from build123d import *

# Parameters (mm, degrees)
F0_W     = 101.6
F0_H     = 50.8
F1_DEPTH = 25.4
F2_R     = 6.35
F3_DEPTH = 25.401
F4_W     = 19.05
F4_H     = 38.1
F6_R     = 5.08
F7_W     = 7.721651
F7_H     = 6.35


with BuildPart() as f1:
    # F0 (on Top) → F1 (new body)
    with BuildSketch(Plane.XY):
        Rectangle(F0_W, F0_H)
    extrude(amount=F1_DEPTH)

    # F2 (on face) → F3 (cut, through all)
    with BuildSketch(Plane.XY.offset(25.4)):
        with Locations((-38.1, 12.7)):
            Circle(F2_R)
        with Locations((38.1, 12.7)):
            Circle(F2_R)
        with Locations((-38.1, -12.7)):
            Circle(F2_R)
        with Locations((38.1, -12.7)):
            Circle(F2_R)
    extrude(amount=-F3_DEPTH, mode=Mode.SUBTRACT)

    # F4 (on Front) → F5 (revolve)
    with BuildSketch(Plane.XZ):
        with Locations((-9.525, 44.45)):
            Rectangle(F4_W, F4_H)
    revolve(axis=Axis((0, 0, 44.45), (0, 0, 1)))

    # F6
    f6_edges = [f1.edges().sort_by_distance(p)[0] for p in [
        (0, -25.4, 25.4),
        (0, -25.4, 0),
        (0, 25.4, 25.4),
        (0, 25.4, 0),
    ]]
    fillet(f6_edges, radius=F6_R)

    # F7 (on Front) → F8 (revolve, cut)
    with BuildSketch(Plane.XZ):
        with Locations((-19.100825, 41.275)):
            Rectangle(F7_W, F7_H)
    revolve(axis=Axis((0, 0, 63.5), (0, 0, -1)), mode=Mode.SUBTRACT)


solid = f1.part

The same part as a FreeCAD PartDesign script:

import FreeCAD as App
import Part
import Sketcher
from FreeCAD import Vector
Q = App.Units.Quantity


def edges_at(feature, points):
    """Names of the edges that pass closest to the given points."""
    edges = feature.Shape.Edges
    near = lambda p: min(range(len(edges)), key=lambda i: edges[i].distToShape(Part.Vertex(*p))[0])
    return sorted({f"Edge{near(p) + 1}" for p in points})

doc = App.newDocument("Part")
body = doc.addObject("PartDesign::Body", "Body")

# Sketch on XY plane
sketch1 = body.newObject("Sketcher::SketchObject", "Sketch")
sketch1.AttachmentSupport = (doc.getObject("XY_Plane"), [""])
sketch1.MapMode = "FlatFace"
sketch1.addGeometry(Part.LineSegment(Vector(-51, 25, 0), Vector(-51, -25, 0)), False)
sketch1.addGeometry(Part.LineSegment(Vector(-51, -25, 0), Vector(51, -25, 0)), False)
sketch1.addGeometry(Part.LineSegment(Vector(51, -25, 0), Vector(51, 25, 0)), False)
sketch1.addGeometry(Part.LineSegment(Vector(51, 25, 0), Vector(-51, 25, 0)), False)
sketch1.addConstraint(Sketcher.Constraint("Coincident", 0, 2, 1, 1))
sketch1.addConstraint(Sketcher.Constraint("Coincident", 1, 2, 2, 1))
sketch1.addConstraint(Sketcher.Constraint("Coincident", 2, 2, 3, 1))
sketch1.addConstraint(Sketcher.Constraint("Coincident", 3, 2, 0, 1))
sketch1.addConstraint(Sketcher.Constraint("Vertical", 0))
sketch1.addConstraint(Sketcher.Constraint("Horizontal", 1))
sketch1.addConstraint(Sketcher.Constraint("Vertical", 2))
sketch1.addConstraint(Sketcher.Constraint("Horizontal", 3))
sketch1.addConstraint(Sketcher.Constraint("Symmetric", 0, 2, 2, 2, -1, 1))
sketch1.addConstraint(Sketcher.Constraint("DistanceX", 1, 1, 1, 2, Q("4 in")))
sketch1.addConstraint(Sketcher.Constraint("DistanceY", 0, 2, 0, 1, Q("2 in")))
pad1 = body.newObject("PartDesign::Pad", "Pad")
pad1.Profile = sketch1
pad1.Length = Q("1 in")

# Sketch on XY plane
sketch2 = body.newObject("Sketcher::SketchObject", "Sketch001")
sketch2.AttachmentSupport = (doc.getObject("XY_Plane"), [""])
sketch2.MapMode = "FlatFace"
sketch2.AttachmentOffset = App.Placement(Vector(0, 0, 1 * 25.4), App.Rotation())
sketch2.addGeometry(Part.Circle(Vector(-38, 13, 0), Vector(0, 0, 1), 6), False)
sketch2.addGeometry(Part.Circle(Vector(38, 13, 0), Vector(0, 0, 1), 6), False)
sketch2.addGeometry(Part.Circle(Vector(-38, -13, 0), Vector(0, 0, 1), 6), False)
sketch2.addGeometry(Part.Circle(Vector(38, -13, 0), Vector(0, 0, 1), 6), False)
sketch2.addConstraint(Sketcher.Constraint("Equal", 0, 1))
sketch2.addConstraint(Sketcher.Constraint("Equal", 1, 2))
sketch2.addConstraint(Sketcher.Constraint("Equal", 2, 3))
sketch2.addConstraint(Sketcher.Constraint("Symmetric", 1, 3, 2, 3, -1, 1))
sketch2.addConstraint(Sketcher.Constraint("Symmetric", 0, 3, 3, 3, -1, 1))
sketch2.addConstraint(Sketcher.Constraint("Symmetric", 0, 3, 1, 3, -2))
sketch2.addConstraint(Sketcher.Constraint("Diameter", 0, Q("0.5 in")))
sketch2.addConstraint(Sketcher.Constraint("DistanceX", 0, 3, 1, 3, Q("3 in")))
sketch2.addConstraint(Sketcher.Constraint("DistanceY", 2, 3, 0, 3, Q("1 in")))
pocket1 = body.newObject("PartDesign::Pocket", "Pocket")
pocket1.Profile = sketch2
pocket1.Type = "ThroughAll"

# Sketch on XZ plane
sketch3 = body.newObject("Sketcher::SketchObject", "Sketch002")
sketch3.AttachmentSupport = (doc.getObject("XZ_Plane"), [""])
sketch3.MapMode = "FlatFace"
sketch3.addGeometry(Part.LineSegment(Vector(-19, 64, 0), Vector(-19, 25, 0)), False)
sketch3.addGeometry(Part.LineSegment(Vector(-19, 25, 0), Vector(0, 25, 0)), False)
sketch3.addGeometry(Part.LineSegment(Vector(0, 25, 0), Vector(0, 64, 0)), False)
sketch3.addGeometry(Part.LineSegment(Vector(0, 64, 0), Vector(-19, 64, 0)), False)
sketch3.addConstraint(Sketcher.Constraint("Coincident", 0, 2, 1, 1))
sketch3.addConstraint(Sketcher.Constraint("Coincident", 1, 2, 2, 1))
sketch3.addConstraint(Sketcher.Constraint("Coincident", 2, 2, 3, 1))
sketch3.addConstraint(Sketcher.Constraint("Coincident", 3, 2, 0, 1))
sketch3.addConstraint(Sketcher.Constraint("Vertical", 0))
sketch3.addConstraint(Sketcher.Constraint("Horizontal", 1))
sketch3.addConstraint(Sketcher.Constraint("Vertical", 2))
sketch3.addConstraint(Sketcher.Constraint("Horizontal", 3))
sketch3.addConstraint(Sketcher.Constraint("PointOnObject", 1, 2, -2))
sketch3.addConstraint(Sketcher.Constraint("DistanceY", 0, 2, 0, 1, Q("1.5 in")))
sketch3.addConstraint(Sketcher.Constraint("DistanceY", -1, 1, 0, 2, Q("1 in")))
sketch3.addConstraint(Sketcher.Constraint("DistanceX", 1, 1, 1, 2, Q("0.75 in")))
revolution = body.newObject("PartDesign::Revolution", "Revolution")
revolution.Profile = sketch3
revolution.ReferenceAxis = (sketch3, ["V_Axis"])
revolution.Angle = 360
doc.recompute()

fillet = body.newObject("PartDesign::Fillet", "Fillet")
fillet.Base = (revolution, edges_at(revolution, [
    (0, -25.4, 25.4),
    (0, -25.4, 0),
    (0, 25.4, 25.4),
    (0, 25.4, 0),
]))
fillet.Radius = Q("0.2 in")

# Sketch on XZ plane
sketch4 = body.newObject("Sketcher::SketchObject", "Sketch003")
sketch4.AttachmentSupport = (doc.getObject("XZ_Plane"), [""])
sketch4.MapMode = "FlatFace"
sketch4.addGeometry(Part.LineSegment(Vector(-23, 44, 0), Vector(-23, 38, 0)), False)
sketch4.addGeometry(Part.LineSegment(Vector(-23, 38, 0), Vector(-15, 38, 0)), False)
sketch4.addGeometry(Part.LineSegment(Vector(-15, 38, 0), Vector(-15, 44, 0)), False)
sketch4.addGeometry(Part.LineSegment(Vector(-15, 44, 0), Vector(-23, 44, 0)), False)
sketch4.addConstraint(Sketcher.Constraint("Coincident", 0, 2, 1, 1))
sketch4.addConstraint(Sketcher.Constraint("Coincident", 1, 2, 2, 1))
sketch4.addConstraint(Sketcher.Constraint("Coincident", 2, 2, 3, 1))
sketch4.addConstraint(Sketcher.Constraint("Coincident", 3, 2, 0, 1))
sketch4.addConstraint(Sketcher.Constraint("Vertical", 0))
sketch4.addConstraint(Sketcher.Constraint("Horizontal", 1))
sketch4.addConstraint(Sketcher.Constraint("Vertical", 2))
sketch4.addConstraint(Sketcher.Constraint("Horizontal", 3))
sketch4.addConstraint(Sketcher.Constraint("DistanceY", 0, 2, 0, 1, Q("0.25 in")))
sketch4.addConstraint(Sketcher.Constraint("DistanceY", -1, 1, 0, 2, Q("1.5 in")))
sketch4.addConstraint(Sketcher.Constraint("DistanceX", 1, 2, -1, 1, Q("0.6 in")))
sketch4.addConstraint(Sketcher.Constraint("DistanceX", 1, 1, 1, 2, 7.721651))
groove = body.newObject("PartDesign::Groove", "Groove")
groove.Profile = sketch4
groove.ReferenceAxis = (sketch4, ["V_Axis"])
groove.Angle = 360

doc.recompute()
